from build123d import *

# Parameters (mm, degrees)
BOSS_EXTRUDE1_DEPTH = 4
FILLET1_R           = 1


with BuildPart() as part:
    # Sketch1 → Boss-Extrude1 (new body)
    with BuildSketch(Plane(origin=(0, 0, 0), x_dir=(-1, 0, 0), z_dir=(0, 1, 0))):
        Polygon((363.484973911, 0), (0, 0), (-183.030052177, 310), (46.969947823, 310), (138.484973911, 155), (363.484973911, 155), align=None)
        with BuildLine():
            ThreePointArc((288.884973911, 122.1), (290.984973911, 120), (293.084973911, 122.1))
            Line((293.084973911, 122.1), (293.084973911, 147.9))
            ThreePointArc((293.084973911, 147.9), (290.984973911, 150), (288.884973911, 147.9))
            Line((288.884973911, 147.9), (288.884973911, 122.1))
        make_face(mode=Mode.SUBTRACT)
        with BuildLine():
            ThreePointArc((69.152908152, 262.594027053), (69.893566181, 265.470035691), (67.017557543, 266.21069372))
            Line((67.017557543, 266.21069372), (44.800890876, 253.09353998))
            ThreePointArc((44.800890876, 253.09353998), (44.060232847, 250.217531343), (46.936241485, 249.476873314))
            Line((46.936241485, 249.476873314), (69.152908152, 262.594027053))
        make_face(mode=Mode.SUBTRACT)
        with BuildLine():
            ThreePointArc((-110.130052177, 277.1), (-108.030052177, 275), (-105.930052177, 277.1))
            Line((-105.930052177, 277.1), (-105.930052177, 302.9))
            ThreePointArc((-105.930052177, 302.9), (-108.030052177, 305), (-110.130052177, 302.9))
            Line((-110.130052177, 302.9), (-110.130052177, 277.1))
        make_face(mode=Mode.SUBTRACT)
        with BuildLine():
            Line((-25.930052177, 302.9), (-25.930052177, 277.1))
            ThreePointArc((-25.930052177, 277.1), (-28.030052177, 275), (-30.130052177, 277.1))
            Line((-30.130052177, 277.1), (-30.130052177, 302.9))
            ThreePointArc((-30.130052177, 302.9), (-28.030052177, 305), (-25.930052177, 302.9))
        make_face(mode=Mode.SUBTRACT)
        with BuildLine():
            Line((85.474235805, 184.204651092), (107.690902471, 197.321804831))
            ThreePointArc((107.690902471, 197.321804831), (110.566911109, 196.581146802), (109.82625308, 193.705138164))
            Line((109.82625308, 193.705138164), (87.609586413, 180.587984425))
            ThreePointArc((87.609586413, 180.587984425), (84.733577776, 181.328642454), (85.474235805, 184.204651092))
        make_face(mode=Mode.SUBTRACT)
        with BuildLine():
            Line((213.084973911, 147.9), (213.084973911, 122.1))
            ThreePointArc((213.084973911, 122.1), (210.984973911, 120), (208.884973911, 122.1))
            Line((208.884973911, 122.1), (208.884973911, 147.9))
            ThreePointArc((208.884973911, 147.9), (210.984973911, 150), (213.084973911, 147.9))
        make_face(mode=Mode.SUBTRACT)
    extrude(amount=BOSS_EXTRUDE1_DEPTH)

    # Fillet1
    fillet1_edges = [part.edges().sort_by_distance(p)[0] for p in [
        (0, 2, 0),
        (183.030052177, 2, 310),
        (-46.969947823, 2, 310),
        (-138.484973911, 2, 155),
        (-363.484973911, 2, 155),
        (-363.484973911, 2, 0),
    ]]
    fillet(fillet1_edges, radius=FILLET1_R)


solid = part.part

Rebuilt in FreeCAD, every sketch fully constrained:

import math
import FreeCAD as App
import Part
import Sketcher

V = App.Vector


def edges_at(feature, points):
    """Names of the edges that pass closest to the given points."""
    edges = feature.Shape.Edges
    near = lambda p: min(range(len(edges)), key=lambda i: edges[i].distToShape(Part.Vertex(*p))[0])
    return sorted({f"Edge{near(p) + 1}" for p in points})


def add_polygon(sketch, points):
    """Adds a closed chain of lines whose ends are joined by coincident constraints."""
    first, n = sketch.GeometryCount, len(points)
    for a, b in zip(points, points[1:] + points[:1]):
        sketch.addGeometry(Part.LineSegment(App.Vector(*a, 0), App.Vector(*b, 0)), False)
    for i in range(n):
        sketch.addConstraint(Sketcher.Constraint("Coincident", first + i, 2, first + (i + 1) % n, 1))

doc = App.newDocument("Part")
body = doc.addObject("PartDesign::Body", "Body")

# Sketch on XZ plane
sketch1 = body.newObject("Sketcher::SketchObject", "Sketch")
sketch1.AttachmentSupport = (doc.getObject("XZ_Plane"), [""])
sketch1.MapMode = "FlatFace"
add_polygon(sketch1, [(0, 0), (-363.5, 0), (-363.5, 155), (-138.5, 155), (-47, 310), (183, 310)])  # lines 0-5
sketch1.addGeometry(Part.LineSegment(V(-288.9, 122.1, 0), V(-288.9, 147.9, 0)), False)  # 6
sketch1.addGeometry(Part.ArcOfCircle(Part.Circle(V(-291, 147.9, 0), V(0, 0, 1), 2.1), math.radians(0), math.radians(180)), False)  # 7
sketch1.addGeometry(Part.LineSegment(V(-293.1, 147.9, 0), V(-293.1, 122.1, 0)), False)  # 8
sketch1.addGeometry(Part.ArcOfCircle(Part.Circle(V(-291, 122.1, 0), V(0, 0, 1), 2.1), math.radians(180), math.radians(360)), False)  # 9
sketch1.addGeometry(Part.LineSegment(V(-213.1, 147.9, 0), V(-213.1, 122.1, 0)), False)  # 10
sketch1.addGeometry(Part.ArcOfCircle(Part.Circle(V(-211, 122.1, 0), V(0, 0, 1), 2.1), math.radians(180), math.radians(360)), False)  # 11
sketch1.addGeometry(Part.LineSegment(V(-208.9, 122.1, 0), V(-208.9, 147.9, 0)), False)  # 12
sketch1.addGeometry(Part.ArcOfCircle(Part.Circle(V(-211, 147.9, 0), V(0, 0, 1), 2.1), math.radians(0), math.radians(180)), False)  # 13
sketch1.addGeometry(Part.LineSegment(V(-85.5, 184.2, 0), V(-107.7, 197.3, 0)), False)  # 14
sketch1.addGeometry(Part.ArcOfCircle(Part.Circle(V(-108.8, 195.5, 0), V(0, 0, 1), 2.1), math.radians(59), math.radians(239)), False)  # 15
sketch1.addGeometry(Part.LineSegment(V(-109.8, 193.7, 0), V(-87.6, 180.6, 0)), False)  # 16
sketch1.addGeometry(Part.ArcOfCircle(Part.Circle(V(-86.5, 182.4, 0), V(0, 0, 1), 2.1), math.radians(-121), math.radians(59)), False)  # 17
sketch1.addGeometry(Part.LineSegment(V(-69.2, 262.6, 0), V(-46.9, 249.5, 0)), False)  # 18
sketch1.addGeometry(Part.ArcOfCircle(Part.Circle(V(-45.9, 251.3, 0), V(0, 0, 1), 2.1), math.radians(-121), math.radians(59)), False)  # 19
sketch1.addGeometry(Part.LineSegment(V(-44.8, 253.1, 0), V(-67, 266.2, 0)), False)  # 20
sketch1.addGeometry(Part.ArcOfCircle(Part.Circle(V(-68.1, 264.4, 0), V(0, 0, 1), 2.1), math.radians(59), math.radians(239)), False)  # 21
sketch1.addGeometry(Part.LineSegment(V(25.9, 302.9, 0), V(25.9, 277.1, 0)), False)  # 22
sketch1.addGeometry(Part.ArcOfCircle(Part.Circle(V(28, 277.1, 0), V(0, 0, 1), 2.1), math.radians(180), math.radians(360)), False)  # 23
sketch1.addGeometry(Part.LineSegment(V(30.1, 277.1, 0), V(30.1, 302.9, 0)), False)  # 24
sketch1.addGeometry(Part.ArcOfCircle(Part.Circle(V(28, 302.9, 0), V(0, 0, 1), 2.1), math.radians(0), math.radians(180)), False)  # 25
sketch1.addGeometry(Part.LineSegment(V(110.1, 277.1, 0), V(110.1, 302.9, 0)), False)  # 26
sketch1.addGeometry(Part.ArcOfCircle(Part.Circle(V(108, 302.9, 0), V(0, 0, 1), 2.1), math.radians(0), math.radians(180)), False)  # 27
sketch1.addGeometry(Part.LineSegment(V(105.9, 302.9, 0), V(105.9, 277.1, 0)), False)  # 28
sketch1.addGeometry(Part.ArcOfCircle(Part.Circle(V(108, 277.1, 0), V(0, 0, 1), 2.1), math.radians(180), math.radians(360)), False)  # 29
sketch1.addConstraint(Sketcher.Constraint("Tangent", 6, 2, 7, 1))
sketch1.addConstraint(Sketcher.Constraint("Tangent", 7, 2, 8, 1))
sketch1.addConstraint(Sketcher.Constraint("Tangent", 8, 2, 9, 1))
sketch1.addConstraint(Sketcher.Constraint("Tangent", 9, 2, 6, 1))
sketch1.addConstraint(Sketcher.Constraint("Tangent", 10, 2, 11, 1))
sketch1.addConstraint(Sketcher.Constraint("Tangent", 11, 2, 12, 1))
sketch1.addConstraint(Sketcher.Constraint("Tangent", 12, 2, 13, 1))
sketch1.addConstraint(Sketcher.Constraint("Tangent", 13, 2, 10, 1))
sketch1.addConstraint(Sketcher.Constraint("Tangent", 14, 2, 15, 1))
sketch1.addConstraint(Sketcher.Constraint("Tangent", 15, 2, 16, 1))
sketch1.addConstraint(Sketcher.Constraint("Tangent", 16, 2, 17, 1))
sketch1.addConstraint(Sketcher.Constraint("Tangent", 17, 2, 14, 1))
sketch1.addConstraint(Sketcher.Constraint("Tangent", 18, 2, 19, 1))
sketch1.addConstraint(Sketcher.Constraint("Tangent", 19, 2, 20, 1))
sketch1.addConstraint(Sketcher.Constraint("Tangent", 20, 2, 21, 1))
sketch1.addConstraint(Sketcher.Constraint("Tangent", 21, 2, 18, 1))
sketch1.addConstraint(Sketcher.Constraint("Tangent", 22, 2, 23, 1))
sketch1.addConstraint(Sketcher.Constraint("Tangent", 23, 2, 24, 1))
sketch1.addConstraint(Sketcher.Constraint("Tangent", 24, 2, 25, 1))
sketch1.addConstraint(Sketcher.Constraint("Tangent", 25, 2, 22, 1))
sketch1.addConstraint(Sketcher.Constraint("Tangent", 26, 2, 27, 1))
sketch1.addConstraint(Sketcher.Constraint("Tangent", 27, 2, 28, 1))
sketch1.addConstraint(Sketcher.Constraint("Tangent", 28, 2, 29, 1))
sketch1.addConstraint(Sketcher.Constraint("Tangent", 29, 2, 26, 1))
sketch1.addConstraint(Sketcher.Constraint("Horizontal", 0))
sketch1.addConstraint(Sketcher.Constraint("Vertical", 1))
sketch1.addConstraint(Sketcher.Constraint("Horizontal", 2))
sketch1.addConstraint(Sketcher.Constraint("Horizontal", 4))
sketch1.addConstraint(Sketcher.Constraint("Vertical", 6))
sketch1.addConstraint(Sketcher.Constraint("Vertical", 8))
sketch1.addConstraint(Sketcher.Constraint("Vertical", 10))
sketch1.addConstraint(Sketcher.Constraint("Vertical", 12))
sketch1.addConstraint(Sketcher.Constraint("Vertical", 22))
sketch1.addConstraint(Sketcher.Constraint("Vertical", 24))
sketch1.addConstraint(Sketcher.Constraint("Vertical", 26))
sketch1.addConstraint(Sketcher.Constraint("Vertical", 28))
sketch1.addConstraint(Sketcher.Constraint("Coincident", 5, 2, -1, 1))
sketch1.addConstraint(Sketcher.Constraint("Equal", 9, 11))
sketch1.addConstraint(Sketcher.Constraint("Equal", 13, 15))
sketch1.addConstraint(Sketcher.Constraint("Equal", 15, 17))
sketch1.addConstraint(Sketcher.Constraint("Equal", 17, 19))
sketch1.addConstraint(Sketcher.Constraint("Equal", 19, 21))
sketch1.addConstraint(Sketcher.Constraint("Equal", 21, 23))
sketch1.addConstraint(Sketcher.Constraint("Equal", 25, 27))
sketch1.addConstraint(Sketcher.Constraint("Parallel", 3, 5))
sketch1.addConstraint(Sketcher.Constraint("Perpendicular", 5, 14))
sketch1.addConstraint(Sketcher.Constraint("Parallel", 16, 18))
sketch1.addConstraint(Sketcher.Constraint("Horizontal", 9, 3, 11, 3))
sketch1.addConstraint(Sketcher.Constraint("Horizontal", 7, 3, 13, 3))
sketch1.addConstraint(Sketcher.Constraint("Horizontal", 25, 3, 27, 3))
sketch1.addConstraint(Sketcher.Constraint("Horizontal", 23, 3, 29, 3))
sketch1.addConstraint(Sketcher.Constraint("Equal", 12, 22))
sketch1.addConstraint(Sketcher.Constraint("Equal", 16, 18))
sketch1.addConstraint(Sketcher.Constraint("Radius", 7, 2.1))
sketch1.addConstraint(Sketcher.Constraint("DistanceX", 2, 1, 2, 2, 225.0))
sketch1.addConstraint(Sketcher.Constraint("DistanceX", 4, 1, 4, 2, 230.0))
sketch1.addConstraint(Sketcher.Constraint("DistanceY", 1, 1, 1, 2, 155.0))
sketch1.addConstraint(Sketcher.Constraint("Distance", 3, 180.0))
sketch1.addConstraint(Sketcher.Constraint("Distance", 5, 360.0))
sketch1.addConstraint(Sketcher.Constraint("DistanceY", 6, 1, 6, 2, 25.8))
sketch1.addConstraint(Sketcher.Constraint("DistanceX", 9, 3, 11, 3, 80.0))
sketch1.addConstraint(Sketcher.Constraint("DistanceX", 25, 3, 27, 3, 80.0))
sketch1.addConstraint(Sketcher.Constraint("DistanceX", 3, 2, 25, 3, 75.0))
sketch1.addConstraint(Sketcher.Constraint("Distance", 14, 25.8))
sketch1.addConstraint(Sketcher.Constraint("DistanceY", -1, 1, 7, 3, 147.9))
sketch1.addConstraint(Sketcher.Constraint("DistanceY", -1, 1, 23, 3, 277.1))
sketch1.addConstraint(Sketcher.Constraint("DistanceX", 0, 2, 9, 3, 72.5))
sketch1.addConstraint(Sketcher.Constraint("DistanceY", 14, 2, 19, 3, 53.963402))
sketch1.addConstraint(Sketcher.Constraint("DistanceY", -1, 1, 15, 3, 195.513471))
sketch1.addConstraint(Sketcher.Constraint("DistanceX", 17, 3, -1, 1, 86.541911))
sketch1.addConstraint(Sketcher.Constraint("DistanceX", 18, 2, -1, 1, 46.936241))
pad1 = body.newObject("PartDesign::Pad", "Pad")
pad1.Profile = sketch1
pad1.Length = 4
pad1.Reversed = True
doc.recompute()

fillet = body.newObject("PartDesign::Fillet", "Fillet")
fillet.Base = (pad1, edges_at(pad1, [
    (0, 2, 0),
    (183.03, 2, 310),
    (-46.97, 2, 310),
    (-138.485, 2, 155),
    (-363.485, 2, 155),
    (-363.485, 2, 0),
]))
fillet.Radius = 1

doc.recompute()
